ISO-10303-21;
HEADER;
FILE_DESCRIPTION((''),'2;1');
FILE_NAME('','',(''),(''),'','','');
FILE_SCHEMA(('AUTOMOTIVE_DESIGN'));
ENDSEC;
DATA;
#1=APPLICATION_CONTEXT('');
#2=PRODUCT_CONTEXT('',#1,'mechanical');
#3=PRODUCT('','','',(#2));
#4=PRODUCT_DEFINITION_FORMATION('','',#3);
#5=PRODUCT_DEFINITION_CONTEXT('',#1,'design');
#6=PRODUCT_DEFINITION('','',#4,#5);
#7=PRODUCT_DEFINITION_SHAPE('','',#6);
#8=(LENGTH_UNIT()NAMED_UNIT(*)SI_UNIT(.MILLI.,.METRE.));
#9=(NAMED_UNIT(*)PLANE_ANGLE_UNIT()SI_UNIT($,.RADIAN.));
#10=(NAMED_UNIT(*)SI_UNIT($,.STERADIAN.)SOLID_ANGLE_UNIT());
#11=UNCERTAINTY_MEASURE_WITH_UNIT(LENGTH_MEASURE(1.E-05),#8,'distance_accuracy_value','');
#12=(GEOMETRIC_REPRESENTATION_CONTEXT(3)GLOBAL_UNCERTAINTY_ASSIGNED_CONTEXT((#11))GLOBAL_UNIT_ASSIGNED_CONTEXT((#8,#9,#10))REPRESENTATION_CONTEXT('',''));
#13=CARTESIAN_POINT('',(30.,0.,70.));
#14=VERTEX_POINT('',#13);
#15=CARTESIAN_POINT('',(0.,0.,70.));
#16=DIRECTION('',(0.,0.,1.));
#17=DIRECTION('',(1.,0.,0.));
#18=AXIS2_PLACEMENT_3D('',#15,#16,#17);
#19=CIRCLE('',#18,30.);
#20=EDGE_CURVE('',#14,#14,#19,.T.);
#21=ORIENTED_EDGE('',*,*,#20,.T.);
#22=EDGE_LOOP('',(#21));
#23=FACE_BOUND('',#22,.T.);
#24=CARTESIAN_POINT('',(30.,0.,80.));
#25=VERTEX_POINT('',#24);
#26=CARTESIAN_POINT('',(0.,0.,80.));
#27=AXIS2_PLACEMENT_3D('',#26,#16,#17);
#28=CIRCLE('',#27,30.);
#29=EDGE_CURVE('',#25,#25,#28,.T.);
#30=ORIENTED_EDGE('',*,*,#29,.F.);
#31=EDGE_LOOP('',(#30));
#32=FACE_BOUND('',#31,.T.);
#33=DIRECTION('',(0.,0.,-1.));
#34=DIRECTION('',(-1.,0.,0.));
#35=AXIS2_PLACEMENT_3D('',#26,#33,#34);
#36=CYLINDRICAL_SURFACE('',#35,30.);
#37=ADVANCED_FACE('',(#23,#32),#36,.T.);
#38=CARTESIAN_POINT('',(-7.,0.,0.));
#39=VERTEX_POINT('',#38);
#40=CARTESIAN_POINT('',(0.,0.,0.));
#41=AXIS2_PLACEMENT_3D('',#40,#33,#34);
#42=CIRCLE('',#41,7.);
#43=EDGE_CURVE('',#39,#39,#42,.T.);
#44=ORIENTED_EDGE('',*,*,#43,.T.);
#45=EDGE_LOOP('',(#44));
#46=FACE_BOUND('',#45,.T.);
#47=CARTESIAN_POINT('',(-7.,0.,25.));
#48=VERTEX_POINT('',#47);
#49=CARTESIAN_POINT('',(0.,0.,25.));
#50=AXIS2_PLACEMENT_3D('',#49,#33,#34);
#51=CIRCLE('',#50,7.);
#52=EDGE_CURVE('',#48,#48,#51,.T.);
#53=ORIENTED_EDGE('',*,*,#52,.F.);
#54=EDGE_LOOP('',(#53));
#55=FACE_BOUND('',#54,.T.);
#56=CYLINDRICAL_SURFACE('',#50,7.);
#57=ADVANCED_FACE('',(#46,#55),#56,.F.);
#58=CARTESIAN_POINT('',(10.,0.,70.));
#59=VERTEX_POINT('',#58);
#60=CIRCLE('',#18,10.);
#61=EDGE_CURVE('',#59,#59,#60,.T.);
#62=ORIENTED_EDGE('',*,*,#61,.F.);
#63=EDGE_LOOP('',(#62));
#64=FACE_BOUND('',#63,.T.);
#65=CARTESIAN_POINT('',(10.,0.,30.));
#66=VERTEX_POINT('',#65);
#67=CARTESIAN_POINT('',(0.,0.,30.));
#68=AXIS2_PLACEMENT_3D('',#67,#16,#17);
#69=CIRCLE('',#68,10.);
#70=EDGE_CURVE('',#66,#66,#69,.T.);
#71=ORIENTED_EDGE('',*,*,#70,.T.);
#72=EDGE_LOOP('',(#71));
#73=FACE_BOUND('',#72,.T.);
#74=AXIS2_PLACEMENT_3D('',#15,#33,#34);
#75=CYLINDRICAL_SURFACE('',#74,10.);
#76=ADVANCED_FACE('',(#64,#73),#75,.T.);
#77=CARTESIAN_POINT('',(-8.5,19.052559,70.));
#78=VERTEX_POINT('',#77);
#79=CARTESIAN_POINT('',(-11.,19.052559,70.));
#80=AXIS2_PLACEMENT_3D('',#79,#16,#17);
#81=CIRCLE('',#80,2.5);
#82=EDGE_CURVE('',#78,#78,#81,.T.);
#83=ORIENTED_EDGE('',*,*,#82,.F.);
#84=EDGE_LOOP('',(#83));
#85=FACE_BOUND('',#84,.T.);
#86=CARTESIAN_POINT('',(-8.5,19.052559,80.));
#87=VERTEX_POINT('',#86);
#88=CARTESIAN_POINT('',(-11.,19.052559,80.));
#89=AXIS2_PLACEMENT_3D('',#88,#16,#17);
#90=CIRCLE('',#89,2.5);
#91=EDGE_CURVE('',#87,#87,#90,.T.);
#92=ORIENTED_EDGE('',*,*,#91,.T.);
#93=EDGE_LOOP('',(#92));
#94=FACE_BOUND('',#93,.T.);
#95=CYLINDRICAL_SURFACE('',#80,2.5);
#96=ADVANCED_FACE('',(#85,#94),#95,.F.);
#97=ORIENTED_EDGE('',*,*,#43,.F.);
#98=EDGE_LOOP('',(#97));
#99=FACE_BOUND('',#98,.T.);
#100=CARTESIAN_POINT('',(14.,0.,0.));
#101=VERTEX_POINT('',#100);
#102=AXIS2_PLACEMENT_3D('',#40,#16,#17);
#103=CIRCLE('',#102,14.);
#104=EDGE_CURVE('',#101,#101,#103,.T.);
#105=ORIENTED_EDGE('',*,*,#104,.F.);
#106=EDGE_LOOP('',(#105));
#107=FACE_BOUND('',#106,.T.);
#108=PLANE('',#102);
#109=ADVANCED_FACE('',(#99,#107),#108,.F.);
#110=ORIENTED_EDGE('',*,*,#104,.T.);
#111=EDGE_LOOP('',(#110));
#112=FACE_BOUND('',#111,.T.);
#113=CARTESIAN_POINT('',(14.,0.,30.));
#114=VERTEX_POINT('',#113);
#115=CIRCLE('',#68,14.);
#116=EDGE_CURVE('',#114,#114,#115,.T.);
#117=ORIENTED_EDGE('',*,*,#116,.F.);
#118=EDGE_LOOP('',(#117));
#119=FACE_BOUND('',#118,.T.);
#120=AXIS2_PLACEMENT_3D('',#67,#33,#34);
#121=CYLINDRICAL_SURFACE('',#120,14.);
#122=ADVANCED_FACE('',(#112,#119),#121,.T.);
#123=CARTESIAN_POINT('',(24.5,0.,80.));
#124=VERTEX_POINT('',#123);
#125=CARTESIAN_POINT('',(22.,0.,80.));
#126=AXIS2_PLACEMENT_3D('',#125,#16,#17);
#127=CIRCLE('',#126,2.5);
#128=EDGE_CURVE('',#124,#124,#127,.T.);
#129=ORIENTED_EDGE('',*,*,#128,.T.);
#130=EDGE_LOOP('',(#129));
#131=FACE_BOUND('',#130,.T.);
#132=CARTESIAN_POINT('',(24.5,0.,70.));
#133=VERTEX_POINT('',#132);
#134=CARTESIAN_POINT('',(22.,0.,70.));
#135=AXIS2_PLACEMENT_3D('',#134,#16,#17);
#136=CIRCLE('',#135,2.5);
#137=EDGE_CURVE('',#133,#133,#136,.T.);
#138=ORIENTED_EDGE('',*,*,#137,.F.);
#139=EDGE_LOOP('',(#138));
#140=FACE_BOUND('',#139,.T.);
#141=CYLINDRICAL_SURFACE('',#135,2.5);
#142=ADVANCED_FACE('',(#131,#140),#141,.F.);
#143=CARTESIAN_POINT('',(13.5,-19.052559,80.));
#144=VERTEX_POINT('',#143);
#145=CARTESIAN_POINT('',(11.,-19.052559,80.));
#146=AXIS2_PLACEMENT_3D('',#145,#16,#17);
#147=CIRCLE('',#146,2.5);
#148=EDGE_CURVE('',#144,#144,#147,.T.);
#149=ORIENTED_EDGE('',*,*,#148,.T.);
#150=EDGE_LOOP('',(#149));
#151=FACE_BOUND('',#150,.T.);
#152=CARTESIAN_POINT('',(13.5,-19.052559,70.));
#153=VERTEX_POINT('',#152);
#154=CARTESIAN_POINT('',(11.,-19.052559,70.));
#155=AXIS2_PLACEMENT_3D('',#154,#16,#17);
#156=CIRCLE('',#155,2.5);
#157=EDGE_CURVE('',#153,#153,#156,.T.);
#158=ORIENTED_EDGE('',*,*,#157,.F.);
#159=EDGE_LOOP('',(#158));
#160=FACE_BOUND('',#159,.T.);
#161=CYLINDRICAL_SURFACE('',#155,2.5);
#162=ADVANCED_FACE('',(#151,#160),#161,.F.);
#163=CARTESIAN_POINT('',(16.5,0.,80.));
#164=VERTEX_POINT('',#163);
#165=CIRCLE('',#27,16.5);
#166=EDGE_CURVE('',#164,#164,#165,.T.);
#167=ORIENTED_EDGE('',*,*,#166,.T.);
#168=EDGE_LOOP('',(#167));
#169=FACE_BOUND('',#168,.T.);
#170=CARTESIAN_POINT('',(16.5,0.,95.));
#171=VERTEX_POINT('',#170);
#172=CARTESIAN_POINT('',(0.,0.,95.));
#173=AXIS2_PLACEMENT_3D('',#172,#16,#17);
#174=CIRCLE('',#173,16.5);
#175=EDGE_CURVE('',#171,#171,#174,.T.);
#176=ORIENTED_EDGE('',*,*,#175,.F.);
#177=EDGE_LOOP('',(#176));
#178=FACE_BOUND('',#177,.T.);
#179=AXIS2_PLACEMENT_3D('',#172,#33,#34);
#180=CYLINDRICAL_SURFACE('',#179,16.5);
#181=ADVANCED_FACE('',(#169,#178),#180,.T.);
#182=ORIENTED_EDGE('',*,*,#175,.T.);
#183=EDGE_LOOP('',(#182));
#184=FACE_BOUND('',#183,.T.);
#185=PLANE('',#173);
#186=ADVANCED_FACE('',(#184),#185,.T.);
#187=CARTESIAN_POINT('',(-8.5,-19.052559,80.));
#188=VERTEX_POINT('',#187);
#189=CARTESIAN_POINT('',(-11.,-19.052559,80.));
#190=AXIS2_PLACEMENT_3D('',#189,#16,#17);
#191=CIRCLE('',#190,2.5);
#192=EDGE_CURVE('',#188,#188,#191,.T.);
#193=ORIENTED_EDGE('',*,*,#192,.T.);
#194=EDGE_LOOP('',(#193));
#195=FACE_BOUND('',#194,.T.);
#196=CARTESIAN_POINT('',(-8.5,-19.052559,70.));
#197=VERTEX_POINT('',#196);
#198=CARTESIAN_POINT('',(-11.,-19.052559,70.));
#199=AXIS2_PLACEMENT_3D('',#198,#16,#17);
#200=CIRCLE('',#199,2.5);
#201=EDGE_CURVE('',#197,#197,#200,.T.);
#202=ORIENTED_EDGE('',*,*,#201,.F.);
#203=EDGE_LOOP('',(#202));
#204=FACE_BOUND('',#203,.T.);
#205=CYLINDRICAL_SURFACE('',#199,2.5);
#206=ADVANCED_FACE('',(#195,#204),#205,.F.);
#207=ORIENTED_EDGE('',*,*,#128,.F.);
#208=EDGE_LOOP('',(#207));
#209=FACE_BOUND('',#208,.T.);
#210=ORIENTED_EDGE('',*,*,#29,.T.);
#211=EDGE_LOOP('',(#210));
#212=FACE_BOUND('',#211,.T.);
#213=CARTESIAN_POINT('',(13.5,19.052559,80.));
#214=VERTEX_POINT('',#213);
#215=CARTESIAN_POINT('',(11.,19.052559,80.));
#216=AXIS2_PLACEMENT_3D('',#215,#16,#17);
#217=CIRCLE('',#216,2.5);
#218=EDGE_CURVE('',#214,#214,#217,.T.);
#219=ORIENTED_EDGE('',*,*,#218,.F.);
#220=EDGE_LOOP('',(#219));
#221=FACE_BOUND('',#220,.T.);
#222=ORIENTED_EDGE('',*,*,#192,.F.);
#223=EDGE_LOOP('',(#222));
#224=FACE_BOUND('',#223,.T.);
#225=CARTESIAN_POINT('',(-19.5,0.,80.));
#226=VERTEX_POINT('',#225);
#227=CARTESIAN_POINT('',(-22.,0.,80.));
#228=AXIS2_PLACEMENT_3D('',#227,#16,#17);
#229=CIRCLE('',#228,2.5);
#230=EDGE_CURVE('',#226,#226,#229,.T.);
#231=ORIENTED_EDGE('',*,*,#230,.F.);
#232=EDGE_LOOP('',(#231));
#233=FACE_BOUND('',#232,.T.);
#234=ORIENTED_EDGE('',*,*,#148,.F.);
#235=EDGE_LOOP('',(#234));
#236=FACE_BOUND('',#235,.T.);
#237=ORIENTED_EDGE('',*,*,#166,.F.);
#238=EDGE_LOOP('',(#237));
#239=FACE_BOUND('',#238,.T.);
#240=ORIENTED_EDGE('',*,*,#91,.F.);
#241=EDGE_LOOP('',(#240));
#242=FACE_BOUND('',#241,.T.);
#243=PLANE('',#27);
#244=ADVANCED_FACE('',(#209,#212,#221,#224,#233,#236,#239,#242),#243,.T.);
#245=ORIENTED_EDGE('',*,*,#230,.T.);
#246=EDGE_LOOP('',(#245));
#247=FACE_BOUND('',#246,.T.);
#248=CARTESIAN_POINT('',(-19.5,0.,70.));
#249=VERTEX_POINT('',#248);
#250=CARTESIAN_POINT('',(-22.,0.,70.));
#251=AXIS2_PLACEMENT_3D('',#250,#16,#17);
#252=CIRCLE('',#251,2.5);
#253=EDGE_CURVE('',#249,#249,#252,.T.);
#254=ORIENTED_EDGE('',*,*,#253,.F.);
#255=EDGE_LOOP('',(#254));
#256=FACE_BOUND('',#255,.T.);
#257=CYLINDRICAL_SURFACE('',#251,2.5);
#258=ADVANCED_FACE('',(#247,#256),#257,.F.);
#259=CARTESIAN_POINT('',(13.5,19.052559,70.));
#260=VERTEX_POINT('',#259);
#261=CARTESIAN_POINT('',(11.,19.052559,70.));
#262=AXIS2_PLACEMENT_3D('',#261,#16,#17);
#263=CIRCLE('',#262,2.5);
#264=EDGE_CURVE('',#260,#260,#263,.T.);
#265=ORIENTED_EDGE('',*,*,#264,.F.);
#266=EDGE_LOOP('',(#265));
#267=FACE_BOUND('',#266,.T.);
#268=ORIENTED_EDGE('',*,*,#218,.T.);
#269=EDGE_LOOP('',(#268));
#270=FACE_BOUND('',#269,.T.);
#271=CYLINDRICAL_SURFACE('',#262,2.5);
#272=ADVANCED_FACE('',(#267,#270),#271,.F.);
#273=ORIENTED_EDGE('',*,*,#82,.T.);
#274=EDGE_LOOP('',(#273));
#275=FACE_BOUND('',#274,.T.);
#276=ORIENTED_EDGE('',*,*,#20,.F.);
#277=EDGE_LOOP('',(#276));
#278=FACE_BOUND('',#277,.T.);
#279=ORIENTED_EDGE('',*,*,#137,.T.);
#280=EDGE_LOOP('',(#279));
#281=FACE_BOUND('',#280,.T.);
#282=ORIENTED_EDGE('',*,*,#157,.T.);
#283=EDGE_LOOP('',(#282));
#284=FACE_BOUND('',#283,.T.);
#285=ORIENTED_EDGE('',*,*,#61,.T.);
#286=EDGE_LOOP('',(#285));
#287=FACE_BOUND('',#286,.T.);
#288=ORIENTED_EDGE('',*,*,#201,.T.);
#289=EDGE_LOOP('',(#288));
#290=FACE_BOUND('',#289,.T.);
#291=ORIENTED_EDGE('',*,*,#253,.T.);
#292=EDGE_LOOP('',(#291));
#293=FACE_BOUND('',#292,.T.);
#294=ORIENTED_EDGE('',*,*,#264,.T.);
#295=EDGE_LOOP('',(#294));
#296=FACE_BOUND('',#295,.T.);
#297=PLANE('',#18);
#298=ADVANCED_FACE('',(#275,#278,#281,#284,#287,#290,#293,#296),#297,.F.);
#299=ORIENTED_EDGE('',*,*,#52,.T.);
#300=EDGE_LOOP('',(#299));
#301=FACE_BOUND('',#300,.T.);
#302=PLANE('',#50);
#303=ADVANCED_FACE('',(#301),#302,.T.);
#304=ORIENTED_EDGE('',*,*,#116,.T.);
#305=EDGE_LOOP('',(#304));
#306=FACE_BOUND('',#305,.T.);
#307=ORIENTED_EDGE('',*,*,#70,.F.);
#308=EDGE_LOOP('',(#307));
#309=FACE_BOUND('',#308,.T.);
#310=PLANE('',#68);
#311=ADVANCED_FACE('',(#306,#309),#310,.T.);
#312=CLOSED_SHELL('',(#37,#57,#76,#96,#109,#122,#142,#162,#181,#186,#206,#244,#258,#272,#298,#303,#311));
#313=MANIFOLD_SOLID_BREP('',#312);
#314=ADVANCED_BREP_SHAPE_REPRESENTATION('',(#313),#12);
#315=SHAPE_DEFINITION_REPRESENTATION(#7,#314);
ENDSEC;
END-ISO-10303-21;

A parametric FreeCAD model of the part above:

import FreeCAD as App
import Part
import Sketcher
from FreeCAD import Vector
Q = App.Units.Quantity

doc = App.newDocument("Part")
body = doc.addObject("PartDesign::Body", "Body")

sketch1 = doc.addObject("Sketcher::SketchObject", "Sketch")
body.addObject(sketch1)
sketch1.AttachmentSupport = (doc.XY_Plane, [""])
sketch1.MapMode = "FlatFace"
sketch1.addGeometry(Part.Circle(Vector(0, 0, 0), Vector(0, 0, 1), 14), False)
sketch1.addConstraint([
    Sketcher.Constraint("Coincident", 0, 3, -1, 1),
    Sketcher.Constraint("Diameter", 0, Q("28 mm")),
])
pad1 = doc.addObject("PartDesign::Pad", "Pad")
body.addObject(pad1)
pad1.Profile = sketch1
pad1.Length = 30

sketch2 = doc.addObject("Sketcher::SketchObject", "Sketch001")
body.addObject(sketch2)
sketch2.AttachmentSupport = (doc.XY_Plane, [""])
sketch2.MapMode = "FlatFace"
sketch2.AttachmentOffset = App.Placement(Vector(0, 0, 30), App.Rotation())
sketch2.addGeometry(Part.Circle(Vector(0, 0, 0), Vector(0, 0, 1), 10), False)
sketch2.addConstraint([
    Sketcher.Constraint("Coincident", 0, 3, -1, 1),
    Sketcher.Constraint("Diameter", 0, Q("20 mm")),
])
pad2 = doc.addObject("PartDesign::Pad", "Pad001")
body.addObject(pad2)
pad2.Profile = sketch2
pad2.Length = 40

sketch3 = doc.addObject("Sketcher::SketchObject", "Sketch002")
body.addObject(sketch3)
sketch3.AttachmentSupport = (doc.XY_Plane, [""])
sketch3.MapMode = "FlatFace"
sketch3.AttachmentOffset = App.Placement(Vector(0, 0, 70), App.Rotation())
sketch3.addGeometry(Part.Circle(Vector(0, 0, 0), Vector(0, 0, 1), 30), False)
sketch3.addConstraint([
    Sketcher.Constraint("Coincident", 0, 3, -1, 1),
    Sketcher.Constraint("Diameter", 0, Q("60 mm")),
])
pad3 = doc.addObject("PartDesign::Pad", "Pad002")
body.addObject(pad3)
pad3.Profile = sketch3
pad3.Length = 10

sketch4 = doc.addObject("Sketcher::SketchObject", "Sketch003")
body.addObject(sketch4)
sketch4.AttachmentSupport = (doc.XY_Plane, [""])
sketch4.MapMode = "FlatFace"
sketch4.AttachmentOffset = App.Placement(Vector(0, 0, 80), App.Rotation())
sketch4.addGeometry(Part.Circle(Vector(0, 0, 0), Vector(0, 0, 1), 16), False)
sketch4.addConstraint([
    Sketcher.Constraint("Coincident", 0, 3, -1, 1),
    Sketcher.Constraint("Diameter", 0, Q("33 mm")),
])
pad4 = doc.addObject("PartDesign::Pad", "Pad003")
body.addObject(pad4)
pad4.Profile = sketch4
pad4.Length = 15

sketch5 = doc.addObject("Sketcher::SketchObject", "Sketch004")
body.addObject(sketch5)
sketch5.AttachmentSupport = (doc.XY_Plane, [""])
sketch5.MapMode = "FlatFace"
sketch5.addGeometry(Part.Circle(Vector(0, 0, 0), Vector(0, 0, 1), 7), False)
sketch5.addConstraint([
    Sketcher.Constraint("Coincident", 0, 3, -1, 1),
    Sketcher.Constraint("Diameter", 0, Q("14 mm")),
])
pocket1 = doc.addObject("PartDesign::Pocket", "Pocket")
body.addObject(pocket1)
pocket1.Profile = sketch5
pocket1.Length = 25
pocket1.Reversed = True

sketch6 = doc.addObject("Sketcher::SketchObject", "Sketch005")
body.addObject(sketch6)
sketch6.AttachmentSupport = (doc.XY_Plane, [""])
sketch6.MapMode = "FlatFace"
sketch6.AttachmentOffset = App.Placement(Vector(0, 0, 80), App.Rotation())
sketch6.addGeometry([
    Part.Circle(Vector(22, 0, 0), Vector(0, 0, 1), 2.5),
    Part.Circle(Vector(11, 19.1, 0), Vector(0, 0, 1), 2.5),
    Part.Circle(Vector(-11, 19.1, 0), Vector(0, 0, 1), 2.5),
    Part.Circle(Vector(-22, 0, 0), Vector(0, 0, 1), 2.5),
    Part.Circle(Vector(-11, -19.1, 0), Vector(0, 0, 1), 2.5),
    Part.Circle(Vector(11, -19.1, 0), Vector(0, 0, 1), 2.5),
], False)
sketch6.addConstraint([
    Sketcher.Constraint("Equal", 0, 1),
    Sketcher.Constraint("Equal", 1, 2),
    Sketcher.Constraint("Equal", 2, 3),
    Sketcher.Constraint("Equal", 3, 4),
    Sketcher.Constraint("Equal", 4, 5),
    Sketcher.Constraint("Symmetric", 0, 3, 3, 3, -1, 1),
    Sketcher.Constraint("Symmetric", 1, 3, 4, 3, -1, 1),
    Sketcher.Constraint("Symmetric", 2, 3, 5, 3, -1, 1),
    Sketcher.Constraint("Symmetric", 1, 3, 2, 3, -2),
    Sketcher.Constraint("PointOnObject", 0, 3, -1),
    Sketcher.Constraint("Diameter", 0, Q("5 mm")),
    Sketcher.Constraint("DistanceX", -1, 1, 0, 3, Q("22 mm")),
    Sketcher.Constraint("DistanceX", -1, 1, 1, 3, Q("11 mm")),
    Sketcher.Constraint("DistanceY", -1, 1, 1, 3, Q("19.052559 mm")),
])
pocket2 = doc.addObject("PartDesign::Pocket", "Pocket001")
body.addObject(pocket2)
pocket2.Profile = sketch6
pocket2.Length = 10

doc.recompute()
